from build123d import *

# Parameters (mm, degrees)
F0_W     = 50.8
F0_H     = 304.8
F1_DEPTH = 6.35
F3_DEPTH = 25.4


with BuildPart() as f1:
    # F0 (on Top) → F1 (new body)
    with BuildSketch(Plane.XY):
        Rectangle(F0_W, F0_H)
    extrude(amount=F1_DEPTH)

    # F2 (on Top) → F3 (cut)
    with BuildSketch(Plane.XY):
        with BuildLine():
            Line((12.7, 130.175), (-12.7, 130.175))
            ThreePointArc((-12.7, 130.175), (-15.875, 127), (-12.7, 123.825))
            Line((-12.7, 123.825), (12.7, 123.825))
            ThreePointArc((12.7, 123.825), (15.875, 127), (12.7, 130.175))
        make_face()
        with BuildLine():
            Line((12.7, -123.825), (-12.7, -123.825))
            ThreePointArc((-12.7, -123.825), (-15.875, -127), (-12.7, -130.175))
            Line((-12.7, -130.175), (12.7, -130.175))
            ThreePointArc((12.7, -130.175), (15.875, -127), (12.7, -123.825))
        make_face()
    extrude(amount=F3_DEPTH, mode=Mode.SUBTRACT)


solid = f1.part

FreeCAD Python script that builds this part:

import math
import FreeCAD as App
import Part
import Sketcher
Q = App.Units.Quantity


def add_polygon(sketch, points):
    """Adds a closed chain of lines whose ends are joined by coincident constraints."""
    first, n = sketch.GeometryCount, len(points)
    for a, b in zip(points, points[1:] + points[:1]):
        sketch.addGeometry(Part.LineSegment(App.Vector(*a, 0), App.Vector(*b, 0)), False)
    for i in range(n):
        sketch.addConstraint(Sketcher.Constraint("Coincident", first + i, 2, first + (i + 1) % n, 1))

doc = App.newDocument("Part")
params = doc.addObject("Spreadsheet::Sheet", "Params")
for row, (alias, value) in enumerate([
    ("sketch1_width", "2 in"),
    ("sketch1_height", "12 in"),
    ("pad1_length", "0.25 in"),
    ("sketch2_width", "1 in"),
    ("sketch2_radius", "0.125 in"),
    ("pocket1_length", "1 in"),
], start=1):
    params.set(f"A{row}", alias)
    params.set(f"B{row}", "=" + value)
    params.setAlias(f"B{row}", alias)

body = doc.addObject("PartDesign::Body", "Body")

# Sketch on XY plane
sketch1 = body.newObject("Sketcher::SketchObject", "Sketch")
sketch1.AttachmentSupport = (doc.getObject("XY_Plane"), [""])
sketch1.MapMode = "FlatFace"
add_polygon(sketch1, [(-25.4, 152.4), (-25.4, -152.4), (25.4, -152.4), (25.4, 152.4)])  # lines 0-3
sketch1.addConstraint([
    Sketcher.Constraint("Vertical", 0),
    Sketcher.Constraint("Horizontal", 1),
    Sketcher.Constraint("Vertical", 2),
    Sketcher.Constraint("Horizontal", 3),
    Sketcher.Constraint("Symmetric", 0, 2, 2, 2, -1, 1),
    Sketcher.Constraint("DistanceX", 1, 1, 1, 2, Q("2 in")),
    Sketcher.Constraint("DistanceY", 0, 2, 0, 1, Q("12 in")),
])
sketch1.setExpression("Constraints[9]", "Params.sketch1_width")
sketch1.setExpression("Constraints[10]", "Params.sketch1_height")
pad1 = body.newObject("PartDesign::Pad", "Pad")
pad1.Profile = sketch1
pad1.setExpression("Length", "Params.pad1_length")

# Sketch on XY plane
sketch2 = body.newObject("Sketcher::SketchObject", "Sketch001")
sketch2.AttachmentSupport = (doc.getObject("XY_Plane"), [""])
sketch2.MapMode = "FlatFace"
sketch2.addGeometry([
    Part.LineSegment(App.Vector(12.7, 130.175, 0), App.Vector(-12.7, 130.175, 0)),  # 0
    Part.ArcOfCircle(Part.Circle(App.Vector(-12.7, 127, 0), App.Vector(0, 0, 1), 3.175), math.radians(90), math.radians(270)),  # 1
    Part.LineSegment(App.Vector(-12.7, 123.825, 0), App.Vector(12.7, 123.825, 0)),  # 2
    Part.ArcOfCircle(Part.Circle(App.Vector(12.7, 127, 0), App.Vector(0, 0, 1), 3.175), math.radians(-90), math.radians(90)),  # 3
    Part.LineSegment(App.Vector(12.7, -123.825, 0), App.Vector(-12.7, -123.825, 0)),  # 4
    Part.ArcOfCircle(Part.Circle(App.Vector(-12.7, -127, 0), App.Vector(0, 0, 1), 3.175), math.radians(90), math.radians(270)),  # 5
    Part.LineSegment(App.Vector(-12.7, -130.175, 0), App.Vector(12.7, -130.175, 0)),  # 6
    Part.ArcOfCircle(Part.Circle(App.Vector(12.7, -127, 0), App.Vector(0, 0, 1), 3.175), math.radians(-90), math.radians(90)),  # 7
], False)
sketch2.addConstraint([
    Sketcher.Constraint("Tangent", 0, 2, 1, 1),
    Sketcher.Constraint("Tangent", 1, 2, 2, 1),
    Sketcher.Constraint("Tangent", 2, 2, 3, 1),
    Sketcher.Constraint("Tangent", 3, 2, 0, 1),
    Sketcher.Constraint("Tangent", 4, 2, 5, 1),
    Sketcher.Constraint("Tangent", 5, 2, 6, 1),
    Sketcher.Constraint("Tangent", 6, 2, 7, 1),
    Sketcher.Constraint("Tangent", 7, 2, 4, 1),
    Sketcher.Constraint("Horizontal", 0),
    Sketcher.Constraint("Horizontal", 2),
    Sketcher.Constraint("Horizontal", 4),
    Sketcher.Constraint("Horizontal", 6),
    Sketcher.Constraint("Equal", 3, 5),
    Sketcher.Constraint("Symmetric", 3, 3, 5, 3, -1, 1),
    Sketcher.Constraint("Vertical", 1, 3, 5, 3),
    Sketcher.Constraint("Vertical", 3, 3, 7, 3),
    Sketcher.Constraint("DistanceX", 0, 2, 0, 1, Q("1 in")),
    Sketcher.Constraint("DistanceY", -1, 1, 1, 3, Q("5 in")),
    Sketcher.Constraint("Radius", 1, Q("0.125 in")),
])
sketch2.setExpression("Constraints[16]", "Params.sketch2_width")
sketch2.setExpression("Constraints[18]", "Params.sketch2_radius")
pocket1 = body.newObject("PartDesign::Pocket", "Pocket")
pocket1.Profile = sketch2
pocket1.setExpression("Length", "Params.pocket1_length")
pocket1.Reversed = True

doc.recompute()
